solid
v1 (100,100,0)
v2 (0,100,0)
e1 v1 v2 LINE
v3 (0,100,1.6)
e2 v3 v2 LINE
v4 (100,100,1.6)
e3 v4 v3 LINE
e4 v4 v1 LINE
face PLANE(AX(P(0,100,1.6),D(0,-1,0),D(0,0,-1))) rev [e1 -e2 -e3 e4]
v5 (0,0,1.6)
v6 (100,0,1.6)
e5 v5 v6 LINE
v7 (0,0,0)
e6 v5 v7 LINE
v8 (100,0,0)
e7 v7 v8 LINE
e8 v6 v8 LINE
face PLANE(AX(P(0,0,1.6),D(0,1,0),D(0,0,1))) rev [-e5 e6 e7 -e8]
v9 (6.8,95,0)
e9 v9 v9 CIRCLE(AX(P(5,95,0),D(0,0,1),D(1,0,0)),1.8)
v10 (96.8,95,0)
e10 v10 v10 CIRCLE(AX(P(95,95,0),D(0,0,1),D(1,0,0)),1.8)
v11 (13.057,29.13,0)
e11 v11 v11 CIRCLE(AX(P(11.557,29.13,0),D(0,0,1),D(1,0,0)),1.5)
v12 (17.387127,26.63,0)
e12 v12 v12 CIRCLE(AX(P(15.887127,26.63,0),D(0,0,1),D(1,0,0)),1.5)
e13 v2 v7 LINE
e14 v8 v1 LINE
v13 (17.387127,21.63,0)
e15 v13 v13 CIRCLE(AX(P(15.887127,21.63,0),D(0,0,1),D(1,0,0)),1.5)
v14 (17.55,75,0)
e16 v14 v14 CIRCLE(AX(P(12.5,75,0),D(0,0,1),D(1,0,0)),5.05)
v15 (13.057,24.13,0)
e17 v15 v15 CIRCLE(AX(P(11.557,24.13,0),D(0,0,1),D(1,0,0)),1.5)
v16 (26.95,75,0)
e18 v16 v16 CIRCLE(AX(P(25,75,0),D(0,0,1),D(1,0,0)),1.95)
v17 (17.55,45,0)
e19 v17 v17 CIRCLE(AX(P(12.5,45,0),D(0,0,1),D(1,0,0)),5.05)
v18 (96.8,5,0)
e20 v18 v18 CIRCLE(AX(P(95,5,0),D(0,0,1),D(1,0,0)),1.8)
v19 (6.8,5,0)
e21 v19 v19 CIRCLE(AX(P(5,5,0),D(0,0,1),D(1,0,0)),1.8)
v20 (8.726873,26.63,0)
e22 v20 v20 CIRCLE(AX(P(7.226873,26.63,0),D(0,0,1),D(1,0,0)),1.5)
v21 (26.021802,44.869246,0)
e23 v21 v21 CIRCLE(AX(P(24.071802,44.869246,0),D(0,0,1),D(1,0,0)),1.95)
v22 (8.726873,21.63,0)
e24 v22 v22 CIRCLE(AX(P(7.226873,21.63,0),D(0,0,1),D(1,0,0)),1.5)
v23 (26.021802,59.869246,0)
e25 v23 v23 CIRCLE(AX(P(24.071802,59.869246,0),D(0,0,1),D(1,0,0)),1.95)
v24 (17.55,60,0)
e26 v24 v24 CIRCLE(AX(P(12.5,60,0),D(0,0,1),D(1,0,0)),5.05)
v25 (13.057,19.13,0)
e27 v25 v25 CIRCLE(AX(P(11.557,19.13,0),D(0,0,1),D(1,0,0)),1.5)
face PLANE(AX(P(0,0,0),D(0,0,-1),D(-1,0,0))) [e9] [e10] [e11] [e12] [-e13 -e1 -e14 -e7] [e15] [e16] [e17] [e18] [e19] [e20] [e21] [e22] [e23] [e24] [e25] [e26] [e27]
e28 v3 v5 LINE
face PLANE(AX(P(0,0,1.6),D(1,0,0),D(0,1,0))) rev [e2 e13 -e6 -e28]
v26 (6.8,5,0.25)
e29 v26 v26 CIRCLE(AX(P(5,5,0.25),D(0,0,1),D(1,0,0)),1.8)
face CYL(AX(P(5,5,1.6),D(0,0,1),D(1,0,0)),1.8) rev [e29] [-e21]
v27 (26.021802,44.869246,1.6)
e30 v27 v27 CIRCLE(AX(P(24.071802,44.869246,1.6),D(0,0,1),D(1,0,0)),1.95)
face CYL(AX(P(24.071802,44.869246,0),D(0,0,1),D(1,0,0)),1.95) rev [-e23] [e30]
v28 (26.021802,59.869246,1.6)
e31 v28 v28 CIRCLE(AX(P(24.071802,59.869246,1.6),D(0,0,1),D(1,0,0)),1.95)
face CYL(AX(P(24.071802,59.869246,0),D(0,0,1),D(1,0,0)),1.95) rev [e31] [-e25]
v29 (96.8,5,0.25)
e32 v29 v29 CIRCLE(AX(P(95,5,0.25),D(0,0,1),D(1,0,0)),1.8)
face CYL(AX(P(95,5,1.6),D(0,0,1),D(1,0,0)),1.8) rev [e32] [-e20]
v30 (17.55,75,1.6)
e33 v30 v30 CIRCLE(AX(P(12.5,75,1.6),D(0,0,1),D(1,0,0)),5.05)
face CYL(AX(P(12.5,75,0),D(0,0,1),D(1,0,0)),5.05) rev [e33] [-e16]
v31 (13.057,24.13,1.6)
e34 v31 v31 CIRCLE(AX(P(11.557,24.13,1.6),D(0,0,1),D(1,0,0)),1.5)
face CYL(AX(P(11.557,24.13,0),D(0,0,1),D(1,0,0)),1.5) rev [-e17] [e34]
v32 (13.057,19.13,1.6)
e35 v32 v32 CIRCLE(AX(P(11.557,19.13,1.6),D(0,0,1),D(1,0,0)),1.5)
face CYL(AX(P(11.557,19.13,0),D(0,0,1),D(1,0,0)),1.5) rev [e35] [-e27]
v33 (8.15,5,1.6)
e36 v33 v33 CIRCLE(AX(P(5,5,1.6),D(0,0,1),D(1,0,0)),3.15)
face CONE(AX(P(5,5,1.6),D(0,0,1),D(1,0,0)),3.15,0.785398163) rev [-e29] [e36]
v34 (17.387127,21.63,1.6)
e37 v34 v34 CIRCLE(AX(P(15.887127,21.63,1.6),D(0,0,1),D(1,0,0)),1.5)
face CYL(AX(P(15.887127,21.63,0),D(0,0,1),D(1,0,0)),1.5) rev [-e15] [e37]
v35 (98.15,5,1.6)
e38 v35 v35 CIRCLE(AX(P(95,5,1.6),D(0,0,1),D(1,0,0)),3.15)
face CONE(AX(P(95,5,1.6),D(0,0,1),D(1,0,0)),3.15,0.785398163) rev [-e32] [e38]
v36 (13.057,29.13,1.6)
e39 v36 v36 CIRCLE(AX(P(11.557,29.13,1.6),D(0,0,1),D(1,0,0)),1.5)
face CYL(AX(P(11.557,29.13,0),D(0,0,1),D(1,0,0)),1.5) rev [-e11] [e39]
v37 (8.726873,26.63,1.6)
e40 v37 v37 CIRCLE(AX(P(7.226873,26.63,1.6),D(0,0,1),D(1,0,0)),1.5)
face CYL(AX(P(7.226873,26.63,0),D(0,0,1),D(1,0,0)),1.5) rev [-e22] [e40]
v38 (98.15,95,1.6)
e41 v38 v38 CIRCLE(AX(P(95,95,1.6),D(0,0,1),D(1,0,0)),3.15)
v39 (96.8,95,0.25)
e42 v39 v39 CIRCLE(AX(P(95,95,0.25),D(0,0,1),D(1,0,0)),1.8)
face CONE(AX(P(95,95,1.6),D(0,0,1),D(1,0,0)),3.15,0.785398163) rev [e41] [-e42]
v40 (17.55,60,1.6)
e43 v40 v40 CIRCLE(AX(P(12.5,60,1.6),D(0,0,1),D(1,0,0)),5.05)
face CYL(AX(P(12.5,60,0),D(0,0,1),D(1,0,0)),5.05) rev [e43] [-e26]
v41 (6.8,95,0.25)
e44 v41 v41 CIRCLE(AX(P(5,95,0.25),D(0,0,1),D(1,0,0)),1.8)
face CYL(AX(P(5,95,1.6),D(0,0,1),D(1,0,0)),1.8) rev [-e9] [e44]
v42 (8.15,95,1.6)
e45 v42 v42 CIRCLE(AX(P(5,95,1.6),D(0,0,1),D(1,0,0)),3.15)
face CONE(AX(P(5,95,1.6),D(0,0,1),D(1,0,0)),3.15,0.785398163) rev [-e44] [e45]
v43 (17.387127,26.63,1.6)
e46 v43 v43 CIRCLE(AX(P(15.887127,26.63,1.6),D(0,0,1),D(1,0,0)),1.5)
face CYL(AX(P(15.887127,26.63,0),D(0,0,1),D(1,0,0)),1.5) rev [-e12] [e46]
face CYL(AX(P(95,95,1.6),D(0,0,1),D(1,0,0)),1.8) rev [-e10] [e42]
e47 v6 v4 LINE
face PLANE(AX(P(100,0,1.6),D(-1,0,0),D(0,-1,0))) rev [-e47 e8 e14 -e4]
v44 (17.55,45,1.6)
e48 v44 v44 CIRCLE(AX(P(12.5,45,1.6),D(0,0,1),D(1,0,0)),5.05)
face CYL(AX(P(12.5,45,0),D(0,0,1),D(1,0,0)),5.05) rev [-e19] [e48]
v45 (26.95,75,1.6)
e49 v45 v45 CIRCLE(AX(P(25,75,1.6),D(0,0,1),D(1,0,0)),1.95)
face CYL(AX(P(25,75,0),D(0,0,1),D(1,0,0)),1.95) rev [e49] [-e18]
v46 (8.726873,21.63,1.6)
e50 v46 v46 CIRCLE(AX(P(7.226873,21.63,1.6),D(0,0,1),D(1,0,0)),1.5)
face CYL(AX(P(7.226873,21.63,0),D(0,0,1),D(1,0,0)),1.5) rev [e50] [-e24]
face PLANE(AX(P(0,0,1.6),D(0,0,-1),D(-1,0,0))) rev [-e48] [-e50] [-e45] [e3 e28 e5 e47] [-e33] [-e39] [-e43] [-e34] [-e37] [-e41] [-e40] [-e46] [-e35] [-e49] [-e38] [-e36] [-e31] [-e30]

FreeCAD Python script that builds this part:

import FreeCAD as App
import Part
import Sketcher

V = App.Vector
Q = App.Units.Quantity

doc = App.newDocument("Part")
body = doc.addObject("PartDesign::Body", "Body")

# Sketch on XY plane
sketch1 = doc.addObject("Sketcher::SketchObject", "Sketch")
body.addObject(sketch1)
sketch1.AttachmentSupport = (doc.XY_Plane, [""])
sketch1.MapMode = "FlatFace"
sketch1.addGeometry(Part.LineSegment(V(0, 100, 0), V(0, 0, 0)), False)
sketch1.addGeometry(Part.LineSegment(V(0, 0, 0), V(100, 0, 0)), False)
sketch1.addGeometry(Part.LineSegment(V(100, 0, 0), V(100, 100, 0)), False)
sketch1.addGeometry(Part.LineSegment(V(100, 100, 0), V(0, 100, 0)), False)
sketch1.addConstraint(Sketcher.Constraint("Coincident", 0, 2, 1, 1))
sketch1.addConstraint(Sketcher.Constraint("Coincident", 1, 2, 2, 1))
sketch1.addConstraint(Sketcher.Constraint("Coincident", 2, 2, 3, 1))
sketch1.addConstraint(Sketcher.Constraint("Coincident", 3, 2, 0, 1))
sketch1.addConstraint(Sketcher.Constraint("Vertical", 0))
sketch1.addConstraint(Sketcher.Constraint("Horizontal", 1))
sketch1.addConstraint(Sketcher.Constraint("Vertical", 2))
sketch1.addConstraint(Sketcher.Constraint("Horizontal", 3))
sketch1.addConstraint(Sketcher.Constraint("Coincident", 0, 2, -1, 1))
sketch1.addConstraint(Sketcher.Constraint("Equal", 3, 0))
sketch1.addConstraint(Sketcher.Constraint("DistanceX", 1, 1, 1, 2, Q("100 mm")))
pad1 = doc.addObject("PartDesign::Pad", "Pad")
body.addObject(pad1)
pad1.Profile = sketch1
pad1.Length = 1.6

# Sketch on YZ plane
sketch2 = doc.addObject("Sketcher::SketchObject", "Sketch001")
body.addObject(sketch2)
sketch2.AttachmentSupport = (doc.YZ_Plane, [""])
sketch2.MapMode = "FlatFace"
sketch2.AttachmentOffset = App.Placement(V(0, 0, 5), App.Rotation())
sketch2.addGeometry(Part.LineSegment(V(95, 0, 0), V(95, 1.6, 0)), False)
sketch2.addGeometry(Part.LineSegment(V(95, 1.6, 0), V(91.85, 1.6, 0)), False)
sketch2.addGeometry(Part.LineSegment(V(91.85, 1.6, 0), V(93.2, 0.25, 0)), False)
sketch2.addGeometry(Part.LineSegment(V(93.2, 0.25, 0), V(93.2, 0, 0)), False)
sketch2.addGeometry(Part.LineSegment(V(93.2, 0, 0), V(95, 0, 0)), False)
sketch2.addGeometry(Part.LineSegment(V(95, 1.6, 0), V(95, 0, 0)), True)  # axis
sketch2.addConstraint(Sketcher.Constraint("Coincident", 0, 2, 1, 1))
sketch2.addConstraint(Sketcher.Constraint("Coincident", 1, 2, 2, 1))
sketch2.addConstraint(Sketcher.Constraint("Coincident", 2, 2, 3, 1))
sketch2.addConstraint(Sketcher.Constraint("Coincident", 3, 2, 4, 1))
sketch2.addConstraint(Sketcher.Constraint("Coincident", 4, 2, 0, 1))
sketch2.addConstraint(Sketcher.Constraint("Vertical", 0))
sketch2.addConstraint(Sketcher.Constraint("Horizontal", 1))
sketch2.addConstraint(Sketcher.Constraint("Vertical", 3))
sketch2.addConstraint(Sketcher.Constraint("Horizontal", 4))
sketch2.addConstraint(Sketcher.Constraint("Vertical", 5))
sketch2.addConstraint(Sketcher.Constraint("Coincident", 5, 1, 0, 2))
sketch2.addConstraint(Sketcher.Constraint("PointOnObject", 3, 2, -1))
sketch2.addConstraint(Sketcher.Constraint("PointOnObject", 5, 2, -1))
sketch2.addConstraint(Sketcher.Constraint("Angle", 2, Q("-45 deg")))
sketch2.addConstraint(Sketcher.Constraint("DistanceX", 4, 1, 4, 2, Q("1.8 mm")))
sketch2.addConstraint(Sketcher.Constraint("DistanceY", 0, 1, 0, 2, Q("1.6 mm")))
sketch2.addConstraint(Sketcher.Constraint("DistanceX", -1, 1, 0, 2, Q("95 mm")))
sketch2.addConstraint(Sketcher.Constraint("DistanceX", 1, 2, 1, 1, Q("3.15 mm")))
groove = doc.addObject("PartDesign::Groove", "Groove")
body.addObject(groove)
groove.Profile = sketch2
groove.ReferenceAxis = (sketch2, ["Axis0"])
groove.Angle = 360
doc.recompute()

linearpattern = doc.addObject("PartDesign::LinearPattern", "LinearPattern")
body.addObject(linearpattern)
linearpattern.Originals = [groove]
linearpattern.Direction = (doc.X_Axis, [""])
linearpattern.Mode = "offset"
linearpattern.Offset = 90
linearpattern.Occurrences = 2
body.Tip = linearpattern
doc.recompute()

datumline = doc.addObject("PartDesign::Line", "DatumLine")
body.addObject(datumline)
datumline.Placement = App.Placement(V(0, 0, 0), App.Rotation(V(0, 0, 1), V(0.707106781, -0.707106781, 0)))
linearpattern2 = doc.addObject("PartDesign::LinearPattern", "LinearPattern001")
body.addObject(linearpattern2)
linearpattern2.Originals = [groove]
linearpattern2.Direction = (datumline, [""])
linearpattern2.Mode = "offset"
linearpattern2.Offset = 127.279221
linearpattern2.Occurrences = 2
body.Tip = linearpattern2
doc.recompute()

linearpattern3 = doc.addObject("PartDesign::LinearPattern", "LinearPattern002")
body.addObject(linearpattern3)
linearpattern3.Originals = [groove]
linearpattern3.Direction = (doc.Y_Axis, [""])
linearpattern3.Mode = "offset"
linearpattern3.Offset = 90
linearpattern3.Occurrences = 2
linearpattern3.Reversed = True
body.Tip = linearpattern3

# Sketch on XY plane
sketch3 = doc.addObject("Sketcher::SketchObject", "Sketch002")
body.addObject(sketch3)
sketch3.AttachmentSupport = (doc.XY_Plane, [""])
sketch3.MapMode = "FlatFace"
sketch3.AttachmentOffset = App.Placement(V(0, 0, 1.6), App.Rotation())
sketch3.addGeometry(Part.Circle(V(11.6, 24.1, 0), V(0, 0, 1), 1.5), False)
sketch3.addGeometry(Part.Circle(V(11.6, 29.1, 0), V(0, 0, 1), 1.5), False)
sketch3.addGeometry(Part.Circle(V(15.9, 26.6, 0), V(0, 0, 1), 1.5), False)
sketch3.addGeometry(Part.Circle(V(15.9, 21.6, 0), V(0, 0, 1), 1.5), False)
sketch3.addGeometry(Part.Circle(V(11.6, 19.1, 0), V(0, 0, 1), 1.5), False)
sketch3.addGeometry(Part.Circle(V(7.2, 21.6, 0), V(0, 0, 1), 1.5), False)
sketch3.addGeometry(Part.Circle(V(7.2, 26.6, 0), V(0, 0, 1), 1.5), False)
sketch3.addGeometry(Part.Circle(V(12.5, 75, 0), V(0, 0, 1), 5), False)
sketch3.addGeometry(Part.Circle(V(12.5, 60, 0), V(0, 0, 1), 5), False)
sketch3.addGeometry(Part.Circle(V(12.5, 45, 0), V(0, 0, 1), 5), False)
sketch3.addGeometry(Part.Circle(V(25, 75, 0), V(0, 0, 1), 1.9), False)
sketch3.addGeometry(Part.Circle(V(24.1, 59.9, 0), V(0, 0, 1), 1.9), False)
sketch3.addGeometry(Part.Circle(V(24.1, 44.9, 0), V(0, 0, 1), 1.9), False)
sketch3.addConstraint(Sketcher.Constraint("Equal", 0, 1))
sketch3.addConstraint(Sketcher.Constraint("Equal", 1, 2))
sketch3.addConstraint(Sketcher.Constraint("Equal", 2, 3))
sketch3.addConstraint(Sketcher.Constraint("Equal", 3, 4))
sketch3.addConstraint(Sketcher.Constraint("Equal", 4, 5))
sketch3.addConstraint(Sketcher.Constraint("Equal", 5, 6))
sketch3.addConstraint(Sketcher.Constraint("Equal", 7, 8))
sketch3.addConstraint(Sketcher.Constraint("Equal", 8, 9))
sketch3.addConstraint(Sketcher.Constraint("Equal", 10, 11))
sketch3.addConstraint(Sketcher.Constraint("Equal", 11, 12))
sketch3.addConstraint(Sketcher.Constraint("Horizontal", 3, 3, 5, 3))
sketch3.addConstraint(Sketcher.Constraint("Horizontal", 2, 3, 6, 3))
sketch3.addConstraint(Sketcher.Constraint("Horizontal", 7, 3, 10, 3))
sketch3.addConstraint(Sketcher.Constraint("Vertical", 0, 3, 1, 3))
sketch3.addConstraint(Sketcher.Constraint("Vertical", 2, 3, 3, 3))
sketch3.addConstraint(Sketcher.Constraint("Vertical", 1, 3, 4, 3))
sketch3.addConstraint(Sketcher.Constraint("Vertical", 5, 3, 6, 3))
sketch3.addConstraint(Sketcher.Constraint("Vertical", 7, 3, 8, 3))
sketch3.addConstraint(Sketcher.Constraint("Vertical", 8, 3, 9, 3))
sketch3.addConstraint(Sketcher.Constraint("Vertical", 11, 3, 12, 3))
sketch3.addConstraint(Sketcher.Constraint("Diameter", 0, Q("3 mm")))
sketch3.addConstraint(Sketcher.Constraint("Diameter", 7, Q("10.1 mm")))
sketch3.addConstraint(Sketcher.Constraint("Diameter", 10, Q("3.9 mm")))
sketch3.addConstraint(Sketcher.Constraint("DistanceY", -1, 1, 7, 3, Q("75 mm")))
sketch3.addConstraint(Sketcher.Constraint("DistanceY", -1, 1, 8, 3, Q("60 mm")))
sketch3.addConstraint(Sketcher.Constraint("DistanceY", -1, 1, 9, 3, Q("45 mm")))
sketch3.addConstraint(Sketcher.Constraint("DistanceX", -1, 1, 10, 3, Q("25 mm")))
sketch3.addConstraint(Sketcher.Constraint("DistanceY", 0, 3, 1, 3, Q("5 mm")))
sketch3.addConstraint(Sketcher.Constraint("DistanceY", 3, 3, 2, 3, Q("5 mm")))
sketch3.addConstraint(Sketcher.Constraint("DistanceY", 4, 3, 0, 3, Q("5 mm")))
sketch3.addConstraint(Sketcher.Constraint("DistanceY", 12, 3, 11, 3, Q("15 mm")))
sketch3.addConstraint(Sketcher.Constraint("DistanceX", -1, 1, 7, 3, Q("12.5 mm")))
sketch3.addConstraint(Sketcher.Constraint("DistanceY", 0, 3, 2, 3, Q("2.5 mm")))
sketch3.addConstraint(Sketcher.Constraint("DistanceY", -1, 1, 0, 3, Q("24.13 mm")))
sketch3.addConstraint(Sketcher.Constraint("DistanceX", -1, 1, 0, 3, Q("11.557 mm")))
sketch3.addConstraint(Sketcher.Constraint("DistanceX", -1, 1, 11, 3, Q("24.071802 mm")))
sketch3.addConstraint(Sketcher.Constraint("DistanceX", -1, 1, 2, 3, Q("15.887127 mm")))
sketch3.addConstraint(Sketcher.Constraint("DistanceX", -1, 1, 5, 3, Q("7.226873 mm")))
sketch3.addConstraint(Sketcher.Constraint("DistanceY", -1, 1, 11, 3, Q("59.869246 mm")))
pocket1 = doc.addObject("PartDesign::Pocket", "Pocket")
body.addObject(pocket1)
pocket1.Profile = sketch3
pocket1.Type = "ThroughAll"

doc.recompute()
